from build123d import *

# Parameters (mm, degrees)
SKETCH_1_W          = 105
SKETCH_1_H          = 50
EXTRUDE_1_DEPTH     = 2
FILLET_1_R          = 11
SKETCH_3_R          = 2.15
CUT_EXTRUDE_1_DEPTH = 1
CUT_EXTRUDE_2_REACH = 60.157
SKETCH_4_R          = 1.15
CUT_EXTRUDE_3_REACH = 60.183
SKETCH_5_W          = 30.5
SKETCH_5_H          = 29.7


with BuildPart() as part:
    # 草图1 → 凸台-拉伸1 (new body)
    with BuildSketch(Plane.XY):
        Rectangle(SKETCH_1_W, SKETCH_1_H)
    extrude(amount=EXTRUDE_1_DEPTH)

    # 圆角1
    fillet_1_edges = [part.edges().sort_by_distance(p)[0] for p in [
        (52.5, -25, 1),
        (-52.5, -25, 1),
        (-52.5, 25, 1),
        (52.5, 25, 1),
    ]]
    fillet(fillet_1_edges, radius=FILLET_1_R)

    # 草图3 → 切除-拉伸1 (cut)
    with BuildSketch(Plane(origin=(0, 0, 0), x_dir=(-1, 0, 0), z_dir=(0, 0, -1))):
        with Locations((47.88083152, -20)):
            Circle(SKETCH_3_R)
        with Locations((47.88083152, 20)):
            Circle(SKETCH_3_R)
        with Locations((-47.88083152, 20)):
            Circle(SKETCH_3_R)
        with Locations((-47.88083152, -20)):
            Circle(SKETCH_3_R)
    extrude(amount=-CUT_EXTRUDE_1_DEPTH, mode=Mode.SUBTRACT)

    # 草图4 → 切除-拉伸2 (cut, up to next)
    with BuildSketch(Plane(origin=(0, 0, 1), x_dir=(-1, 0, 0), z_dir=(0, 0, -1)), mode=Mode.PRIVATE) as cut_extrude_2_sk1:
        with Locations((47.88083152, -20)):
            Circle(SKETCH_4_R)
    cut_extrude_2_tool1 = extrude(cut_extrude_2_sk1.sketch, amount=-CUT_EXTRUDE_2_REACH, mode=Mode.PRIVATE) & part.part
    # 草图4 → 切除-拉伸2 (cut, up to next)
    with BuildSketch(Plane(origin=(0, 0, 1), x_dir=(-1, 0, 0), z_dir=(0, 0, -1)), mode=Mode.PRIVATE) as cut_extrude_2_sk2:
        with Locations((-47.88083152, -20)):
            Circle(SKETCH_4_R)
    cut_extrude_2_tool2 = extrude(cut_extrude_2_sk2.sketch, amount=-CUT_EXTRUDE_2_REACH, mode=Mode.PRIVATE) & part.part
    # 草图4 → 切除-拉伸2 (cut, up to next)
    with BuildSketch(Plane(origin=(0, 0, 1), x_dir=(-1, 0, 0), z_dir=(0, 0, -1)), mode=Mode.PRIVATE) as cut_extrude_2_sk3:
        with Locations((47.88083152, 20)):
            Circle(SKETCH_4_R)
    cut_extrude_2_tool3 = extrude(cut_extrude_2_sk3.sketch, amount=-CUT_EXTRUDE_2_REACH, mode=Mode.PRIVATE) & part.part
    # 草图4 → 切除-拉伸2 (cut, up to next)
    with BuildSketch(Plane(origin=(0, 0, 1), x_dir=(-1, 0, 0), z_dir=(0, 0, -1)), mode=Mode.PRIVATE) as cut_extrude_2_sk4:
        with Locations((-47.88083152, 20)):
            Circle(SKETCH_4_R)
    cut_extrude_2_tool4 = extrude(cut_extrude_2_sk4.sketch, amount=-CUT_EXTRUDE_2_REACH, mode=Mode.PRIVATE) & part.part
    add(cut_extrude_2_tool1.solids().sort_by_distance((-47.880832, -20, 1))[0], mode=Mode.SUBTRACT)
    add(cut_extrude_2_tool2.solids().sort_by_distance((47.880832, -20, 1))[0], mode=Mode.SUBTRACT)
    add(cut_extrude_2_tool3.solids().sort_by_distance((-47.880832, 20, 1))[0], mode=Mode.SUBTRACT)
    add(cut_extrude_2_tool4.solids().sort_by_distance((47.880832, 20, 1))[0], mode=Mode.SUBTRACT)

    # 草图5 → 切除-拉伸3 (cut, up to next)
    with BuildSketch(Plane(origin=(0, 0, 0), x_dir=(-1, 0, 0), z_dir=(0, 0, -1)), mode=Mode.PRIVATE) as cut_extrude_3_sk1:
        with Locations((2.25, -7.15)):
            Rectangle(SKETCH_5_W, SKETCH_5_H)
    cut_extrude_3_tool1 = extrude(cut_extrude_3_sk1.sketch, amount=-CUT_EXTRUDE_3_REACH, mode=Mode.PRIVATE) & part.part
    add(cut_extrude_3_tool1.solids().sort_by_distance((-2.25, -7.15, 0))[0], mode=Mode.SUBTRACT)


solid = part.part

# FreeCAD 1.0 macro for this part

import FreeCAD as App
import Part
import Sketcher

V = App.Vector
Q = App.Units.Quantity


def edges_at(feature, points):
    """Names of the edges that pass closest to the given points."""
    edges = feature.Shape.Edges
    near = lambda p: min(range(len(edges)), key=lambda i: edges[i].distToShape(Part.Vertex(*p))[0])
    return sorted({f"Edge{near(p) + 1}" for p in points})


def add_polygon(sketch, points):
    """Adds a closed chain of lines whose ends are joined by coincident constraints."""
    first, n = sketch.GeometryCount, len(points)
    for a, b in zip(points, points[1:] + points[:1]):
        sketch.addGeometry(Part.LineSegment(App.Vector(*a, 0), App.Vector(*b, 0)), False)
    for i in range(n):
        sketch.addConstraint(Sketcher.Constraint("Coincident", first + i, 2, first + (i + 1) % n, 1))

doc = App.newDocument("Part")
body = doc.addObject("PartDesign::Body", "Body")

# Sketch on XY plane
sketch1 = doc.addObject("Sketcher::SketchObject", "Sketch")
body.addObject(sketch1)
sketch1.AttachmentSupport = (doc.XY_Plane, [""])
sketch1.MapMode = "FlatFace"
add_polygon(sketch1, [(-52, 25), (-52, -25), (52, -25), (52, 25)])  # lines 0-3
sketch1.addConstraint([
    Sketcher.Constraint("Vertical", 0),
    Sketcher.Constraint("Horizontal", 1),
    Sketcher.Constraint("Vertical", 2),
    Sketcher.Constraint("Horizontal", 3),
    Sketcher.Constraint("Symmetric", 0, 2, 2, 2, -1, 1),
    Sketcher.Constraint("DistanceX", 1, 1, 1, 2, Q("105 mm")),
    Sketcher.Constraint("DistanceY", 0, 2, 0, 1, Q("50 mm")),
])
pad1 = doc.addObject("PartDesign::Pad", "Pad")
body.addObject(pad1)
pad1.Profile = sketch1
pad1.Length = 2
doc.recompute()

fillet = doc.addObject("PartDesign::Fillet", "Fillet")
body.addObject(fillet)
fillet.Base = (pad1, edges_at(pad1, [
    (52.5, -25, 1),
    (-52.5, -25, 1),
    (-52.5, 25, 1),
    (52.5, 25, 1),
]))
fillet.Radius = 11

# Sketch on XY plane
sketch2 = doc.addObject("Sketcher::SketchObject", "Sketch001")
body.addObject(sketch2)
sketch2.AttachmentSupport = (doc.XY_Plane, [""])
sketch2.MapMode = "FlatFace"
sketch2.addGeometry([
    Part.Circle(V(-47.9, -20, 0), V(0, 0, 1), 2.1),
    Part.Circle(V(-47.9, 20, 0), V(0, 0, 1), 2.1),
    Part.Circle(V(47.9, 20, 0), V(0, 0, 1), 2.1),
    Part.Circle(V(47.9, -20, 0), V(0, 0, 1), 2.1),
], False)
sketch2.addConstraint([
    Sketcher.Constraint("Equal", 0, 1),
    Sketcher.Constraint("Equal", 1, 2),
    Sketcher.Constraint("Equal", 2, 3),
    Sketcher.Constraint("Symmetric", 0, 3, 2, 3, -1, 1),
    Sketcher.Constraint("Symmetric", 1, 3, 3, 3, -1, 1),
    Sketcher.Constraint("Symmetric", 1, 3, 2, 3, -2),
    Sketcher.Constraint("Diameter", 0, Q("4.3 mm")),
    Sketcher.Constraint("DistanceY", 0, 3, -1, 1, Q("20 mm")),
    Sketcher.Constraint("DistanceX", 0, 3, -1, 1, Q("47.880832 mm")),
])
pocket1 = doc.addObject("PartDesign::Pocket", "Pocket")
body.addObject(pocket1)
pocket1.Profile = sketch2
pocket1.Length = 1
pocket1.Reversed = True

# Sketch on XY plane
sketch3 = doc.addObject("Sketcher::SketchObject", "Sketch002")
body.addObject(sketch3)
sketch3.AttachmentSupport = (doc.XY_Plane, [""])
sketch3.MapMode = "FlatFace"
sketch3.AttachmentOffset = App.Placement(V(0, 0, 1), App.Rotation())
sketch3.addGeometry(Part.Circle(V(-47.9, -20, 0), V(0, 0, 1), 1.1), False)
sketch3.addConstraint([
    Sketcher.Constraint("Diameter", 0, Q("2.3 mm")),
    Sketcher.Constraint("DistanceY", 0, 3, -1, 1, Q("20 mm")),
    Sketcher.Constraint("DistanceX", 0, 3, -1, 1, Q("47.880832 mm")),
])
pocket2 = doc.addObject("PartDesign::Pocket", "Pocket001")
body.addObject(pocket2)
pocket2.Profile = sketch3
pocket2.Type = "UpToFirst"
pocket2.Reversed = True

# Sketch on XY plane
sketch4 = doc.addObject("Sketcher::SketchObject", "Sketch003")
body.addObject(sketch4)
sketch4.AttachmentSupport = (doc.XY_Plane, [""])
sketch4.MapMode = "FlatFace"
sketch4.AttachmentOffset = App.Placement(V(0, 0, 1), App.Rotation())
sketch4.addGeometry(Part.Circle(V(47.9, -20, 0), V(0, 0, 1), 1.1), False)
sketch4.addConstraint([
    Sketcher.Constraint("Diameter", 0, Q("2.3 mm")),
    Sketcher.Constraint("DistanceY", 0, 3, -1, 1, Q("20 mm")),
    Sketcher.Constraint("DistanceX", -1, 1, 0, 3, Q("47.880832 mm")),
])
pocket3 = doc.addObject("PartDesign::Pocket", "Pocket002")
body.addObject(pocket3)
pocket3.Profile = sketch4
pocket3.Type = "UpToFirst"
pocket3.Reversed = True

# Sketch on XY plane
sketch5 = doc.addObject("Sketcher::SketchObject", "Sketch004")
body.addObject(sketch5)
sketch5.AttachmentSupport = (doc.XY_Plane, [""])
sketch5.MapMode = "FlatFace"
sketch5.AttachmentOffset = App.Placement(V(0, 0, 1), App.Rotation())
sketch5.addGeometry(Part.Circle(V(-47.9, 20, 0), V(0, 0, 1), 1.1), False)
sketch5.addConstraint([
    Sketcher.Constraint("Diameter", 0, Q("2.3 mm")),
    Sketcher.Constraint("DistanceY", -1, 1, 0, 3, Q("20 mm")),
    Sketcher.Constraint("DistanceX", 0, 3, -1, 1, Q("47.880832 mm")),
])
pocket4 = doc.addObject("PartDesign::Pocket", "Pocket003")
body.addObject(pocket4)
pocket4.Profile = sketch5
pocket4.Type = "UpToFirst"
pocket4.Reversed = True

# Sketch on XY plane
sketch6 = doc.addObject("Sketcher::SketchObject", "Sketch005")
body.addObject(sketch6)
sketch6.AttachmentSupport = (doc.XY_Plane, [""])
sketch6.MapMode = "FlatFace"
sketch6.AttachmentOffset = App.Placement(V(0, 0, 1), App.Rotation())
sketch6.addGeometry(Part.Circle(V(47.9, 20, 0), V(0, 0, 1), 1.1), False)
sketch6.addConstraint([
    Sketcher.Constraint("Diameter", 0, Q("2.3 mm")),
    Sketcher.Constraint("DistanceY", -1, 1, 0, 3, Q("20 mm")),
    Sketcher.Constraint("DistanceX", -1, 1, 0, 3, Q("47.880832 mm")),
])
pocket5 = doc.addObject("PartDesign::Pocket", "Pocket004")
body.addObject(pocket5)
pocket5.Profile = sketch6
pocket5.Type = "UpToFirst"
pocket5.Reversed = True

# Sketch on XY plane
sketch7 = doc.addObject("Sketcher::SketchObject", "Sketch006")
body.addObject(sketch7)
sketch7.AttachmentSupport = (doc.XY_Plane, [""])
sketch7.MapMode = "FlatFace"
add_polygon(sketch7, [(13, 8), (13, -22), (-18, -22), (-18, 8)])  # lines 0-3
sketch7.addConstraint([
    Sketcher.Constraint("Vertical", 0),
    Sketcher.Constraint("Horizontal", 1),
    Sketcher.Constraint("Vertical", 2),
    Sketcher.Constraint("Horizontal", 3),
    Sketcher.Constraint("DistanceX", 1, 2, 1, 1, Q("30.5 mm")),
    Sketcher.Constraint("DistanceY", 0, 2, 0, 1, Q("29.7 mm")),
    Sketcher.Constraint("DistanceX", -1, 1, 0, 2, Q("13 mm")),
    Sketcher.Constraint("DistanceY", 0, 2, -1, 1, Q("22 mm")),
])
pocket6 = doc.addObject("PartDesign::Pocket", "Pocket005")
body.addObject(pocket6)
pocket6.Profile = sketch7
pocket6.Type = "UpToFirst"
pocket6.Reversed = True

doc.recompute()
